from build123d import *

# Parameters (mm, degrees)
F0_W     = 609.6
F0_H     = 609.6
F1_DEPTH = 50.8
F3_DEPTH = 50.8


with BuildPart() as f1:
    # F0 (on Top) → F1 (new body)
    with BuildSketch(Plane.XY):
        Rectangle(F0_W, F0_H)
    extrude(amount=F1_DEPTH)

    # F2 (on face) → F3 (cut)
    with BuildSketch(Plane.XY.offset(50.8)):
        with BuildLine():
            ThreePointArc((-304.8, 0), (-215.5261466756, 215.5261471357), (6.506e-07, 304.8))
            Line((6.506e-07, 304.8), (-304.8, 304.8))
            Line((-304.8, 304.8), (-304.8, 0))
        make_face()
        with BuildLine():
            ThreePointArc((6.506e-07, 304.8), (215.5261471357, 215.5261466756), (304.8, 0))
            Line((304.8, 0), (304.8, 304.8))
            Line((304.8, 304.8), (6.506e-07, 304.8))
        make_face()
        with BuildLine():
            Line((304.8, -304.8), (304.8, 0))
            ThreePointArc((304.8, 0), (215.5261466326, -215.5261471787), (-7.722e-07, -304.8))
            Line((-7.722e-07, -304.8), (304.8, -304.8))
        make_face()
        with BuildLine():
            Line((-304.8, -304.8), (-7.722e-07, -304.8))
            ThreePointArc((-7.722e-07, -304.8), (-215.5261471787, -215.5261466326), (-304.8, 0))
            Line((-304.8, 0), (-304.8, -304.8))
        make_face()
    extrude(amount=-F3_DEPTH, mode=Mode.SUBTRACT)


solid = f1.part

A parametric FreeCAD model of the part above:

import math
import FreeCAD as App
import Part
import Sketcher

V = App.Vector
Q = App.Units.Quantity

doc = App.newDocument("Part")
body = doc.addObject("PartDesign::Body", "Body")

# Sketch on XY plane
sketch1 = body.newObject("Sketcher::SketchObject", "Sketch")
sketch1.AttachmentSupport = (doc.getObject("XY_Plane"), [""])
sketch1.MapMode = "FlatFace"
sketch1.addGeometry([
    Part.LineSegment(V(-305, 305, 0), V(-305, -305, 0)),
    Part.LineSegment(V(-305, -305, 0), V(305, -305, 0)),
    Part.LineSegment(V(305, -305, 0), V(305, 305, 0)),
    Part.LineSegment(V(305, 305, 0), V(-305, 305, 0)),
], False)
sketch1.addConstraint([
    Sketcher.Constraint("Coincident", 0, 2, 1, 1),
    Sketcher.Constraint("Coincident", 1, 2, 2, 1),
    Sketcher.Constraint("Coincident", 2, 2, 3, 1),
    Sketcher.Constraint("Coincident", 3, 2, 0, 1),
    Sketcher.Constraint("Vertical", 0),
    Sketcher.Constraint("Horizontal", 1),
    Sketcher.Constraint("Vertical", 2),
    Sketcher.Constraint("Horizontal", 3),
    Sketcher.Constraint("Symmetric", 0, 2, 2, 2, -1, 1),
    Sketcher.Constraint("Equal", 3, 0),
    Sketcher.Constraint("DistanceX", 1, 1, 1, 2, Q("24 in")),
])
pad1 = body.newObject("PartDesign::Pad", "Pad")
pad1.Profile = sketch1
pad1.Length = Q("2 in")

# Sketch on XY plane
sketch2 = body.newObject("Sketcher::SketchObject", "Sketch001")
sketch2.AttachmentSupport = (doc.getObject("XY_Plane"), [""])
sketch2.MapMode = "FlatFace"
sketch2.AttachmentOffset = App.Placement(V(0, 0, 2 * 25.4), App.Rotation())
sketch2.addGeometry([
    Part.ArcOfCircle(Part.Circle(V(0, 0, 0), V(0, 0, 1), 305), math.radians(90), math.radians(180)),  # 0
    Part.LineSegment(V(0, 305, 0), V(-305, 305, 0)),  # 1
    Part.LineSegment(V(-305, 305, 0), V(-305, 0, 0)),  # 2
    Part.ArcOfCircle(Part.Circle(V(0, 0, 0), V(0, 0, 1), 305), math.radians(0), math.radians(90)),  # 3
    Part.LineSegment(V(305, 0, 0), V(305, 305, 0)),  # 4
    Part.LineSegment(V(305, 305, 0), V(0, 305, 0)),  # 5
    Part.LineSegment(V(305, -305, 0), V(305, 0, 0)),  # 6
    Part.ArcOfCircle(Part.Circle(V(0, 0, 0), V(0, 0, 1), 305), math.radians(-90), math.radians(0)),  # 7
    Part.LineSegment(V(0, -305, 0), V(305, -305, 0)),  # 8
    Part.LineSegment(V(-305, -305, 0), V(0, -305, 0)),  # 9
    Part.ArcOfCircle(Part.Circle(V(0, 0, 0), V(0, 0, 1), 305), math.radians(180), math.radians(270)),  # 10
    Part.LineSegment(V(-305, 0, 0), V(-305, -305, 0)),  # 11
], False)
sketch2.addConstraint([
    Sketcher.Constraint("Tangent", 0, 1, 1, 1),
    Sketcher.Constraint("Coincident", 1, 2, 2, 1),
    Sketcher.Constraint("Tangent", 2, 2, 0, 2),
    Sketcher.Constraint("Tangent", 3, 1, 4, 1),
    Sketcher.Constraint("Coincident", 4, 2, 5, 1),
    Sketcher.Constraint("Tangent", 5, 2, 3, 2),
    Sketcher.Constraint("Tangent", 6, 2, 7, 2),
    Sketcher.Constraint("Tangent", 7, 1, 8, 1),
    Sketcher.Constraint("Coincident", 8, 2, 6, 1),
    Sketcher.Constraint("Tangent", 9, 2, 10, 2),
    Sketcher.Constraint("Tangent", 10, 1, 11, 1),
    Sketcher.Constraint("Coincident", 11, 2, 9, 1),
    Sketcher.Constraint("Horizontal", 1),
    Sketcher.Constraint("Vertical", 2),
    Sketcher.Constraint("Vertical", 4),
    Sketcher.Constraint("Horizontal", 5),
    Sketcher.Constraint("Vertical", 6),
    Sketcher.Constraint("Horizontal", 8),
    Sketcher.Constraint("Horizontal", 9),
    Sketcher.Constraint("Vertical", 11),
    Sketcher.Constraint("Coincident", 0, 3, -1, 1),
    Sketcher.Constraint("Coincident", 3, 3, -1, 1),
    Sketcher.Constraint("Coincident", 7, 3, -1, 1),
    Sketcher.Constraint("Coincident", 10, 3, -1, 1),
    Sketcher.Constraint("Equal", 0, 3),
    Sketcher.Constraint("Equal", 3, 7),
    Sketcher.Constraint("Equal", 7, 10),
    Sketcher.Constraint("Radius", 0, Q("12 in")),
])
pocket1 = body.newObject("PartDesign::Pocket", "Pocket")
pocket1.Profile = sketch2
pocket1.Length = Q("2 in")

doc.recompute()
